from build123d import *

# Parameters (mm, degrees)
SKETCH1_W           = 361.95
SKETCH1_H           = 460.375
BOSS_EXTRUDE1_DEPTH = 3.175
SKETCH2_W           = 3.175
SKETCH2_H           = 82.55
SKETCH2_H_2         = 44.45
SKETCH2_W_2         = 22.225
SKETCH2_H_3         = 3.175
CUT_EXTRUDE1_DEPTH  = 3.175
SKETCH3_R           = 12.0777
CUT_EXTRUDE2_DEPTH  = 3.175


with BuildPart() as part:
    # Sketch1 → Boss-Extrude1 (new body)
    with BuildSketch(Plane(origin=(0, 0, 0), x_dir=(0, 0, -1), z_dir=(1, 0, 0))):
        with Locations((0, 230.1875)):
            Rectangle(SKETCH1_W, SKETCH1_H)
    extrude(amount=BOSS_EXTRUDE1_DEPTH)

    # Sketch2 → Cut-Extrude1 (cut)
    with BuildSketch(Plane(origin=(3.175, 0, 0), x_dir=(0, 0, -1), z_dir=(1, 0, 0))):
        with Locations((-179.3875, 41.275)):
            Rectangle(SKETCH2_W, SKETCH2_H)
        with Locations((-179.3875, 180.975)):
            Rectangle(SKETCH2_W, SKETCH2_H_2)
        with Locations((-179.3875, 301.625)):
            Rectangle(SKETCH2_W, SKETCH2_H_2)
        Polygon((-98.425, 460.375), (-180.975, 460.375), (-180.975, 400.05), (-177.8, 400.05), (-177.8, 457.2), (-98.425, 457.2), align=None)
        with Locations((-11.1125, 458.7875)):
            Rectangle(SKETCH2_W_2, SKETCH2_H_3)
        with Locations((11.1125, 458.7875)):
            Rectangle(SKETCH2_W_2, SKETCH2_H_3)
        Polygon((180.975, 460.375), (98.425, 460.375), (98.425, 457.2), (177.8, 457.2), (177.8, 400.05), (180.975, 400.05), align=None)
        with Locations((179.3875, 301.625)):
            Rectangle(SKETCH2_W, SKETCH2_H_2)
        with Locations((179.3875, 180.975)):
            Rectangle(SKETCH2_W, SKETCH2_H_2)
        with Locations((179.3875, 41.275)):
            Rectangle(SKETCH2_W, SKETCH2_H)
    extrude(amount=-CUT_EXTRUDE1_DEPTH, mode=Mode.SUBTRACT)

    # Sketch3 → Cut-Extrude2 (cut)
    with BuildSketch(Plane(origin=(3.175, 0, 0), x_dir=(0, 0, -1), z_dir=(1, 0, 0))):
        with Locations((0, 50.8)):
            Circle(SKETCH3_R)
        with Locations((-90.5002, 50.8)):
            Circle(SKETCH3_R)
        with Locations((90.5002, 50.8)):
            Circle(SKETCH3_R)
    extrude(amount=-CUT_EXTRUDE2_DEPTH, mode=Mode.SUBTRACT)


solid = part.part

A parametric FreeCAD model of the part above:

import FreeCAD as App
import Part
import Sketcher
from FreeCAD import Vector
Q = App.Units.Quantity


def add_polygon(sketch, points):
    """Adds a closed chain of lines whose ends are joined by coincident constraints."""
    first, n = sketch.GeometryCount, len(points)
    for a, b in zip(points, points[1:] + points[:1]):
        sketch.addGeometry(Part.LineSegment(App.Vector(*a, 0), App.Vector(*b, 0)), False)
    for i in range(n):
        sketch.addConstraint(Sketcher.Constraint("Coincident", first + i, 2, first + (i + 1) % n, 1))

doc = App.newDocument("Part")
body = doc.addObject("PartDesign::Body", "Body")

# Sketch on YZ plane
sketch1 = doc.addObject("Sketcher::SketchObject", "Sketch")
body.addObject(sketch1)
sketch1.AttachmentSupport = (doc.YZ_Plane, [""])
sketch1.MapMode = "FlatFace"
add_polygon(sketch1, [(460, 181), (0, 181), (0, -181), (460, -181)])  # lines 0-3
sketch1.addConstraint(Sketcher.Constraint("Horizontal", 0))
sketch1.addConstraint(Sketcher.Constraint("Vertical", 1))
sketch1.addConstraint(Sketcher.Constraint("Horizontal", 2))
sketch1.addConstraint(Sketcher.Constraint("Vertical", 3))
sketch1.addConstraint(Sketcher.Constraint("Symmetric", 0, 2, 1, 2, -1, 1))
sketch1.addConstraint(Sketcher.Constraint("DistanceY", 1, 2, 1, 1, Q("14.25 in")))
sketch1.addConstraint(Sketcher.Constraint("DistanceX", 0, 2, 0, 1, Q("18.125 in")))
pad1 = doc.addObject("PartDesign::Pad", "Pad")
body.addObject(pad1)
pad1.Profile = sketch1
pad1.Length = Q("0.125 in")

# Sketch on YZ plane
sketch2 = doc.addObject("Sketcher::SketchObject", "Sketch001")
body.addObject(sketch2)
sketch2.AttachmentSupport = (doc.YZ_Plane, [""])
sketch2.MapMode = "FlatFace"
sketch2.AttachmentOffset = App.Placement(Vector(0, 0, 0.125 * 25.4), App.Rotation())
add_polygon(sketch2, [(82.5, 181), (0, 181), (0, 177.8), (82.5, 177.8)])  # lines 0-3
add_polygon(sketch2, [(203.2, 181), (158.8, 181), (158.8, 177.8), (203.2, 177.8)])  # lines 4-7
add_polygon(sketch2, [(323.9, 181), (279.4, 181), (279.4, 177.8), (323.9, 177.8)])  # lines 8-11
add_polygon(sketch2, [(460.4, 98.4), (460.4, 181), (400.1, 181), (400.1, 177.8), (457.2, 177.8), (457.2, 98.4)])  # lines 12-17
add_polygon(sketch2, [(460.4, 22.2), (457.2, 22.2), (457.2, -22.2), (460.4, -22.2)])  # lines 18-21
add_polygon(sketch2, [(460.4, -181), (460.4, -98.4), (457.2, -98.4), (457.2, -177.8), (400.1, -177.8), (400.1, -181)])  # lines 22-27
add_polygon(sketch2, [(323.9, -177.8), (279.4, -177.8), (279.4, -181), (323.9, -181)])  # lines 28-31
add_polygon(sketch2, [(203.2, -177.8), (158.8, -177.8), (158.8, -181), (203.2, -181)])  # lines 32-35
add_polygon(sketch2, [(82.5, -177.8), (0, -177.8), (0, -181), (82.5, -181)])  # lines 36-39
sketch2.addConstraint(Sketcher.Constraint("Horizontal", 0))
sketch2.addConstraint(Sketcher.Constraint("Vertical", 1))
sketch2.addConstraint(Sketcher.Constraint("Horizontal", 2))
sketch2.addConstraint(Sketcher.Constraint("Vertical", 3))
sketch2.addConstraint(Sketcher.Constraint("Horizontal", 4))
sketch2.addConstraint(Sketcher.Constraint("Vertical", 5))
sketch2.addConstraint(Sketcher.Constraint("Horizontal", 6))
sketch2.addConstraint(Sketcher.Constraint("Vertical", 7))
sketch2.addConstraint(Sketcher.Constraint("Horizontal", 8))
sketch2.addConstraint(Sketcher.Constraint("Vertical", 9))
sketch2.addConstraint(Sketcher.Constraint("Horizontal", 10))
sketch2.addConstraint(Sketcher.Constraint("Vertical", 11))
sketch2.addConstraint(Sketcher.Constraint("Vertical", 12))
sketch2.addConstraint(Sketcher.Constraint("Horizontal", 13))
sketch2.addConstraint(Sketcher.Constraint("Vertical", 14))
sketch2.addConstraint(Sketcher.Constraint("Horizontal", 15))
sketch2.addConstraint(Sketcher.Constraint("Vertical", 16))
sketch2.addConstraint(Sketcher.Constraint("Horizontal", 17))
sketch2.addConstraint(Sketcher.Constraint("Horizontal", 18))
sketch2.addConstraint(Sketcher.Constraint("Vertical", 19))
sketch2.addConstraint(Sketcher.Constraint("Horizontal", 20))
sketch2.addConstraint(Sketcher.Constraint("Vertical", 21))
sketch2.addConstraint(Sketcher.Constraint("Vertical", 22))
sketch2.addConstraint(Sketcher.Constraint("Horizontal", 23))
sketch2.addConstraint(Sketcher.Constraint("Vertical", 24))
sketch2.addConstraint(Sketcher.Constraint("Horizontal", 25))
sketch2.addConstraint(Sketcher.Constraint("Vertical", 26))
sketch2.addConstraint(Sketcher.Constraint("Horizontal", 27))
sketch2.addConstraint(Sketcher.Constraint("Horizontal", 28))
sketch2.addConstraint(Sketcher.Constraint("Vertical", 29))
sketch2.addConstraint(Sketcher.Constraint("Horizontal", 30))
sketch2.addConstraint(Sketcher.Constraint("Vertical", 31))
sketch2.addConstraint(Sketcher.Constraint("Horizontal", 32))
sketch2.addConstraint(Sketcher.Constraint("Vertical", 33))
sketch2.addConstraint(Sketcher.Constraint("Horizontal", 34))
sketch2.addConstraint(Sketcher.Constraint("Vertical", 35))
sketch2.addConstraint(Sketcher.Constraint("Horizontal", 36))
sketch2.addConstraint(Sketcher.Constraint("Vertical", 37))
sketch2.addConstraint(Sketcher.Constraint("Horizontal", 38))
sketch2.addConstraint(Sketcher.Constraint("Vertical", 39))
sketch2.addConstraint(Sketcher.Constraint("Symmetric", 1, 2, 36, 2, -1, 1))
sketch2.addConstraint(Sketcher.Constraint("Symmetric", 17, 2, 22, 2, -1))
sketch2.addConstraint(Sketcher.Constraint("Symmetric", 15, 2, 24, 2, -1))
sketch2.addConstraint(Sketcher.Constraint("Symmetric", 13, 2, 26, 2, -1))
sketch2.addConstraint(Sketcher.Constraint("Symmetric", 9, 2, 28, 2, -1))
sketch2.addConstraint(Sketcher.Constraint("Symmetric", 11, 2, 30, 2, -1))
sketch2.addConstraint(Sketcher.Constraint("Symmetric", 5, 2, 32, 2, -1))
sketch2.addConstraint(Sketcher.Constraint("Symmetric", 7, 2, 34, 2, -1))
sketch2.addConstraint(Sketcher.Constraint("Symmetric", 0, 2, 37, 2, -1))
sketch2.addConstraint(Sketcher.Constraint("Horizontal", 3, 2, 4, 2))
sketch2.addConstraint(Sketcher.Constraint("Horizontal", 2, 2, 5, 2))
sketch2.addConstraint(Sketcher.Constraint("Horizontal", 7, 2, 8, 2))
sketch2.addConstraint(Sketcher.Constraint("Horizontal", 6, 2, 9, 2))
sketch2.addConstraint(Sketcher.Constraint("Horizontal", 11, 2, 12, 2))
sketch2.addConstraint(Sketcher.Constraint("Horizontal", 10, 2, 14, 2))
sketch2.addConstraint(Sketcher.Constraint("Vertical", 16, 2, 18, 2))
sketch2.addConstraint(Sketcher.Constraint("Vertical", 17, 2, 20, 2))
sketch2.addConstraint(Sketcher.Constraint("Vertical", 3, 2, 38, 2))
sketch2.addConstraint(Sketcher.Constraint("Equal", 6, 8))
sketch2.addConstraint(Sketcher.Constraint("Equal", 23, 1))
sketch2.addConstraint(Sketcher.Constraint("Equal", 38, 12))
sketch2.addConstraint(Sketcher.Constraint("Equal", 34, 19))
sketch2.addConstraint(Sketcher.Constraint("DistanceY", -1, 1, 1, 2, Q("7 in")))
sketch2.addConstraint(Sketcher.Constraint("DistanceX", -1, 1, 6, 2, Q("8 in")))
sketch2.addConstraint(Sketcher.Constraint("DistanceX", -1, 1, 8, 2, Q("11 in")))
sketch2.addConstraint(Sketcher.Constraint("DistanceX", -1, 1, 15, 2, Q("18 in")))
sketch2.addConstraint(Sketcher.Constraint("DistanceX", 3, 2, 4, 2, Q("3 in")))
sketch2.addConstraint(Sketcher.Constraint("DistanceX", 11, 2, 13, 2, Q("3 in")))
sketch2.addConstraint(Sketcher.Constraint("DistanceY", 18, 2, 16, 2, Q("3 in")))
sketch2.addConstraint(Sketcher.Constraint("DistanceY", 22, 2, 20, 2, Q("3 in")))
sketch2.addConstraint(Sketcher.Constraint("DistanceX", 0, 2, 0, 1, Q("3.25 in")))
pocket1 = doc.addObject("PartDesign::Pocket", "Pocket")
body.addObject(pocket1)
pocket1.Profile = sketch2
pocket1.Length = Q("0.125 in")

# Sketch on YZ plane
sketch3 = doc.addObject("Sketcher::SketchObject", "Sketch002")
body.addObject(sketch3)
sketch3.AttachmentSupport = (doc.YZ_Plane, [""])
sketch3.MapMode = "FlatFace"
sketch3.AttachmentOffset = App.Placement(Vector(0, 0, 0.125 * 25.4), App.Rotation())
sketch3.addGeometry(Part.Circle(Vector(51, 0, 0), Vector(0, 0, 1), 12), False)
sketch3.addGeometry(Part.Circle(Vector(51, 91, 0), Vector(0, 0, 1), 12), False)
sketch3.addGeometry(Part.Circle(Vector(51, -91, 0), Vector(0, 0, 1), 12), False)
sketch3.addConstraint(Sketcher.Constraint("Equal", 0, 1))
sketch3.addConstraint(Sketcher.Constraint("Equal", 1, 2))
sketch3.addConstraint(Sketcher.Constraint("Symmetric", 1, 3, 2, 3, -1))
sketch3.addConstraint(Sketcher.Constraint("PointOnObject", 0, 3, -1))
sketch3.addConstraint(Sketcher.Constraint("Vertical", 0, 3, 1, 3))
sketch3.addConstraint(Sketcher.Constraint("Diameter", 0, Q("0.951 in")))
sketch3.addConstraint(Sketcher.Constraint("DistanceX", -1, 1, 0, 3, Q("2 in")))
sketch3.addConstraint(Sketcher.Constraint("DistanceY", -1, 1, 1, 3, Q("3.563 in")))
pocket2 = doc.addObject("PartDesign::Pocket", "Pocket001")
body.addObject(pocket2)
pocket2.Profile = sketch3
pocket2.Length = Q("0.125 in")

doc.recompute()
